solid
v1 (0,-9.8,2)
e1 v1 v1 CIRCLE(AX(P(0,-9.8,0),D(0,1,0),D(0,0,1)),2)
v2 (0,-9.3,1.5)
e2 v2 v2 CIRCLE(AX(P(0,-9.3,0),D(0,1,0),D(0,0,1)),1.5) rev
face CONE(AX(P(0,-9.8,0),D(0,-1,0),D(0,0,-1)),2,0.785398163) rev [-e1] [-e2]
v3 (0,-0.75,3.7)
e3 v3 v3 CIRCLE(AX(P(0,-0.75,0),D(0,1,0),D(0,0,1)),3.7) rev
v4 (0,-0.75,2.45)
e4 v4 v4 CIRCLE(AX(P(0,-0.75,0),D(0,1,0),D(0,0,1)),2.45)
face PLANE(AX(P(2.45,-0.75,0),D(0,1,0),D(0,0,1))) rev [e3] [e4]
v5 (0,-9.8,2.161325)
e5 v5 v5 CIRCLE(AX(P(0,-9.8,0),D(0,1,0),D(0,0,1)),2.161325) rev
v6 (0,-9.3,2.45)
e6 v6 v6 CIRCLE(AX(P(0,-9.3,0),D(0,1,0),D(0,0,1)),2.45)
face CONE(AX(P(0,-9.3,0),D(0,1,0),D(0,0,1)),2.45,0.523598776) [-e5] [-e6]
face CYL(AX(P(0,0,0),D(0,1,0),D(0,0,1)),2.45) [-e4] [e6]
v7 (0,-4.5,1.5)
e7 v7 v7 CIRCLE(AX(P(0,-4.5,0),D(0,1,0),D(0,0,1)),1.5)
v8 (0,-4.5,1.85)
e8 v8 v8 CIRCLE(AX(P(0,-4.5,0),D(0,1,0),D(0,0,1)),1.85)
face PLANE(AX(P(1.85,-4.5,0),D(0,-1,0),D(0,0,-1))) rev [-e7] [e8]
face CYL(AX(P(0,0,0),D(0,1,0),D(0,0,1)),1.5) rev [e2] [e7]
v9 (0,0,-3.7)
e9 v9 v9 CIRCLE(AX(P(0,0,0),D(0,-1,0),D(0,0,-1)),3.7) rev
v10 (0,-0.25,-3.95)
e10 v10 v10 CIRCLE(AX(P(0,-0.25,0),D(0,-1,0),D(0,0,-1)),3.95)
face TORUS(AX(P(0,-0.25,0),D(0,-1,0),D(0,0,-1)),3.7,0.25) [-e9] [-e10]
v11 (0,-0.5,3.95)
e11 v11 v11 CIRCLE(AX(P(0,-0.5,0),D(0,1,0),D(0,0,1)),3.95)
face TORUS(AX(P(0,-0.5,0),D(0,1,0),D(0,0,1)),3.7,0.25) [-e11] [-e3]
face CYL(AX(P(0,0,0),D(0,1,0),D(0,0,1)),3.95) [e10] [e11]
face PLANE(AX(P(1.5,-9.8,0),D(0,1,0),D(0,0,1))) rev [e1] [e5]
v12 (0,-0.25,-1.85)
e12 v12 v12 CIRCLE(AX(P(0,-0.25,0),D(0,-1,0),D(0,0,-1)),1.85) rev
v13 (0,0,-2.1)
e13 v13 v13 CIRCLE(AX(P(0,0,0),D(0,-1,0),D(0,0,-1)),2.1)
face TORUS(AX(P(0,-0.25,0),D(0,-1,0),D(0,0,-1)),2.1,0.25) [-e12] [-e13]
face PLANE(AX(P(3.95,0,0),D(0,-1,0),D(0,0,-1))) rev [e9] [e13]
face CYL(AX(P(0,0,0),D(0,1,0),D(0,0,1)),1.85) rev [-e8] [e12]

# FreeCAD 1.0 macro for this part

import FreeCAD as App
import Part
import Sketcher

V = App.Vector


def edges_at(feature, points):
    """Names of the edges that pass closest to the given points."""
    edges = feature.Shape.Edges
    near = lambda p: min(range(len(edges)), key=lambda i: edges[i].distToShape(Part.Vertex(*p))[0])
    return sorted({f"Edge{near(p) + 1}" for p in points})

doc = App.newDocument("Part")
body = doc.addObject("PartDesign::Body", "Body")

sketch1 = body.newObject("Sketcher::SketchObject", "Sketch")
sketch1.AttachmentSupport = (doc.getObject("XY_Plane"), [""])
sketch1.MapMode = "FlatFace"
sketch1.addGeometry([
    Part.LineSegment(V(1.85, 0, 0), V(1.85, -4.5, 0)),
    Part.LineSegment(V(1.85, -4.5, 0), V(1.5, -4.5, 0)),
    Part.LineSegment(V(1.5, -4.5, 0), V(1.5, -9.8, 0)),
    Part.LineSegment(V(1.5, -9.8, 0), V(2.45, -9.8, 0)),
    Part.LineSegment(V(2.45, -9.8, 0), V(2.45, -0.75, 0)),
    Part.LineSegment(V(2.45, -0.75, 0), V(3.95, -0.75, 0)),
    Part.LineSegment(V(3.95, -0.75, 0), V(3.95, 0, 0)),
    Part.LineSegment(V(3.95, 0, 0), V(1.85, 0, 0)),
], False)
sketch1.addConstraint([
    Sketcher.Constraint("Coincident", 0, 2, 1, 1),
    Sketcher.Constraint("Coincident", 1, 2, 2, 1),
    Sketcher.Constraint("Coincident", 2, 2, 3, 1),
    Sketcher.Constraint("Coincident", 3, 2, 4, 1),
    Sketcher.Constraint("Coincident", 4, 2, 5, 1),
    Sketcher.Constraint("Coincident", 5, 2, 6, 1),
    Sketcher.Constraint("Coincident", 6, 2, 7, 1),
    Sketcher.Constraint("Coincident", 7, 2, 0, 1),
    Sketcher.Constraint("Vertical", 0),
    Sketcher.Constraint("Horizontal", 1),
    Sketcher.Constraint("Vertical", 2),
    Sketcher.Constraint("Horizontal", 3),
    Sketcher.Constraint("Vertical", 4),
    Sketcher.Constraint("Horizontal", 5),
    Sketcher.Constraint("Vertical", 6),
    Sketcher.Constraint("Horizontal", 7),
    Sketcher.Constraint("PointOnObject", 6, 2, -1),
    Sketcher.Constraint("DistanceX", 5, 1, 5, 2, 1.5),
    Sketcher.Constraint("DistanceX", 7, 2, 7, 1, 2.1),
    Sketcher.Constraint("DistanceY", 0, 2, 0, 1, 4.5),
    Sketcher.Constraint("DistanceY", 2, 2, 2, 1, 5.3),
    Sketcher.Constraint("DistanceX", 1, 2, 1, 1, 0.35),
    Sketcher.Constraint("DistanceY", 4, 1, 4, 2, 9.05),
    Sketcher.Constraint("DistanceX", -1, 1, 1, 2, 1.5),
])
revolution = body.newObject("PartDesign::Revolution", "Revolution")
revolution.Profile = sketch1
revolution.ReferenceAxis = (sketch1, ["V_Axis"])
revolution.Angle = 360
doc.recompute()

fillet = body.newObject("PartDesign::Fillet", "Fillet")
fillet.Base = (revolution, edges_at(revolution, [(-3.95, 0, 0), (-3.95, -0.75, 0), (-1.85, 0, 0)]))
fillet.Radius = 0.25
doc.recompute()

chamfer = body.newObject("PartDesign::Chamfer", "Chamfer")
chamfer.Base = (fillet, edges_at(fillet, [(-2.45, -9.8, 0)]))
chamfer.ChamferType = "Two distances"
chamfer.Size = 0.5
chamfer.Size2 = 0.288675
chamfer.FlipDirection = True
doc.recompute()

chamfer2 = body.newObject("PartDesign::Chamfer", "Chamfer001")
chamfer2.Base = (chamfer, edges_at(chamfer, [(-1.5, -9.8, 0)]))
chamfer2.Size = 0.5

doc.recompute()
